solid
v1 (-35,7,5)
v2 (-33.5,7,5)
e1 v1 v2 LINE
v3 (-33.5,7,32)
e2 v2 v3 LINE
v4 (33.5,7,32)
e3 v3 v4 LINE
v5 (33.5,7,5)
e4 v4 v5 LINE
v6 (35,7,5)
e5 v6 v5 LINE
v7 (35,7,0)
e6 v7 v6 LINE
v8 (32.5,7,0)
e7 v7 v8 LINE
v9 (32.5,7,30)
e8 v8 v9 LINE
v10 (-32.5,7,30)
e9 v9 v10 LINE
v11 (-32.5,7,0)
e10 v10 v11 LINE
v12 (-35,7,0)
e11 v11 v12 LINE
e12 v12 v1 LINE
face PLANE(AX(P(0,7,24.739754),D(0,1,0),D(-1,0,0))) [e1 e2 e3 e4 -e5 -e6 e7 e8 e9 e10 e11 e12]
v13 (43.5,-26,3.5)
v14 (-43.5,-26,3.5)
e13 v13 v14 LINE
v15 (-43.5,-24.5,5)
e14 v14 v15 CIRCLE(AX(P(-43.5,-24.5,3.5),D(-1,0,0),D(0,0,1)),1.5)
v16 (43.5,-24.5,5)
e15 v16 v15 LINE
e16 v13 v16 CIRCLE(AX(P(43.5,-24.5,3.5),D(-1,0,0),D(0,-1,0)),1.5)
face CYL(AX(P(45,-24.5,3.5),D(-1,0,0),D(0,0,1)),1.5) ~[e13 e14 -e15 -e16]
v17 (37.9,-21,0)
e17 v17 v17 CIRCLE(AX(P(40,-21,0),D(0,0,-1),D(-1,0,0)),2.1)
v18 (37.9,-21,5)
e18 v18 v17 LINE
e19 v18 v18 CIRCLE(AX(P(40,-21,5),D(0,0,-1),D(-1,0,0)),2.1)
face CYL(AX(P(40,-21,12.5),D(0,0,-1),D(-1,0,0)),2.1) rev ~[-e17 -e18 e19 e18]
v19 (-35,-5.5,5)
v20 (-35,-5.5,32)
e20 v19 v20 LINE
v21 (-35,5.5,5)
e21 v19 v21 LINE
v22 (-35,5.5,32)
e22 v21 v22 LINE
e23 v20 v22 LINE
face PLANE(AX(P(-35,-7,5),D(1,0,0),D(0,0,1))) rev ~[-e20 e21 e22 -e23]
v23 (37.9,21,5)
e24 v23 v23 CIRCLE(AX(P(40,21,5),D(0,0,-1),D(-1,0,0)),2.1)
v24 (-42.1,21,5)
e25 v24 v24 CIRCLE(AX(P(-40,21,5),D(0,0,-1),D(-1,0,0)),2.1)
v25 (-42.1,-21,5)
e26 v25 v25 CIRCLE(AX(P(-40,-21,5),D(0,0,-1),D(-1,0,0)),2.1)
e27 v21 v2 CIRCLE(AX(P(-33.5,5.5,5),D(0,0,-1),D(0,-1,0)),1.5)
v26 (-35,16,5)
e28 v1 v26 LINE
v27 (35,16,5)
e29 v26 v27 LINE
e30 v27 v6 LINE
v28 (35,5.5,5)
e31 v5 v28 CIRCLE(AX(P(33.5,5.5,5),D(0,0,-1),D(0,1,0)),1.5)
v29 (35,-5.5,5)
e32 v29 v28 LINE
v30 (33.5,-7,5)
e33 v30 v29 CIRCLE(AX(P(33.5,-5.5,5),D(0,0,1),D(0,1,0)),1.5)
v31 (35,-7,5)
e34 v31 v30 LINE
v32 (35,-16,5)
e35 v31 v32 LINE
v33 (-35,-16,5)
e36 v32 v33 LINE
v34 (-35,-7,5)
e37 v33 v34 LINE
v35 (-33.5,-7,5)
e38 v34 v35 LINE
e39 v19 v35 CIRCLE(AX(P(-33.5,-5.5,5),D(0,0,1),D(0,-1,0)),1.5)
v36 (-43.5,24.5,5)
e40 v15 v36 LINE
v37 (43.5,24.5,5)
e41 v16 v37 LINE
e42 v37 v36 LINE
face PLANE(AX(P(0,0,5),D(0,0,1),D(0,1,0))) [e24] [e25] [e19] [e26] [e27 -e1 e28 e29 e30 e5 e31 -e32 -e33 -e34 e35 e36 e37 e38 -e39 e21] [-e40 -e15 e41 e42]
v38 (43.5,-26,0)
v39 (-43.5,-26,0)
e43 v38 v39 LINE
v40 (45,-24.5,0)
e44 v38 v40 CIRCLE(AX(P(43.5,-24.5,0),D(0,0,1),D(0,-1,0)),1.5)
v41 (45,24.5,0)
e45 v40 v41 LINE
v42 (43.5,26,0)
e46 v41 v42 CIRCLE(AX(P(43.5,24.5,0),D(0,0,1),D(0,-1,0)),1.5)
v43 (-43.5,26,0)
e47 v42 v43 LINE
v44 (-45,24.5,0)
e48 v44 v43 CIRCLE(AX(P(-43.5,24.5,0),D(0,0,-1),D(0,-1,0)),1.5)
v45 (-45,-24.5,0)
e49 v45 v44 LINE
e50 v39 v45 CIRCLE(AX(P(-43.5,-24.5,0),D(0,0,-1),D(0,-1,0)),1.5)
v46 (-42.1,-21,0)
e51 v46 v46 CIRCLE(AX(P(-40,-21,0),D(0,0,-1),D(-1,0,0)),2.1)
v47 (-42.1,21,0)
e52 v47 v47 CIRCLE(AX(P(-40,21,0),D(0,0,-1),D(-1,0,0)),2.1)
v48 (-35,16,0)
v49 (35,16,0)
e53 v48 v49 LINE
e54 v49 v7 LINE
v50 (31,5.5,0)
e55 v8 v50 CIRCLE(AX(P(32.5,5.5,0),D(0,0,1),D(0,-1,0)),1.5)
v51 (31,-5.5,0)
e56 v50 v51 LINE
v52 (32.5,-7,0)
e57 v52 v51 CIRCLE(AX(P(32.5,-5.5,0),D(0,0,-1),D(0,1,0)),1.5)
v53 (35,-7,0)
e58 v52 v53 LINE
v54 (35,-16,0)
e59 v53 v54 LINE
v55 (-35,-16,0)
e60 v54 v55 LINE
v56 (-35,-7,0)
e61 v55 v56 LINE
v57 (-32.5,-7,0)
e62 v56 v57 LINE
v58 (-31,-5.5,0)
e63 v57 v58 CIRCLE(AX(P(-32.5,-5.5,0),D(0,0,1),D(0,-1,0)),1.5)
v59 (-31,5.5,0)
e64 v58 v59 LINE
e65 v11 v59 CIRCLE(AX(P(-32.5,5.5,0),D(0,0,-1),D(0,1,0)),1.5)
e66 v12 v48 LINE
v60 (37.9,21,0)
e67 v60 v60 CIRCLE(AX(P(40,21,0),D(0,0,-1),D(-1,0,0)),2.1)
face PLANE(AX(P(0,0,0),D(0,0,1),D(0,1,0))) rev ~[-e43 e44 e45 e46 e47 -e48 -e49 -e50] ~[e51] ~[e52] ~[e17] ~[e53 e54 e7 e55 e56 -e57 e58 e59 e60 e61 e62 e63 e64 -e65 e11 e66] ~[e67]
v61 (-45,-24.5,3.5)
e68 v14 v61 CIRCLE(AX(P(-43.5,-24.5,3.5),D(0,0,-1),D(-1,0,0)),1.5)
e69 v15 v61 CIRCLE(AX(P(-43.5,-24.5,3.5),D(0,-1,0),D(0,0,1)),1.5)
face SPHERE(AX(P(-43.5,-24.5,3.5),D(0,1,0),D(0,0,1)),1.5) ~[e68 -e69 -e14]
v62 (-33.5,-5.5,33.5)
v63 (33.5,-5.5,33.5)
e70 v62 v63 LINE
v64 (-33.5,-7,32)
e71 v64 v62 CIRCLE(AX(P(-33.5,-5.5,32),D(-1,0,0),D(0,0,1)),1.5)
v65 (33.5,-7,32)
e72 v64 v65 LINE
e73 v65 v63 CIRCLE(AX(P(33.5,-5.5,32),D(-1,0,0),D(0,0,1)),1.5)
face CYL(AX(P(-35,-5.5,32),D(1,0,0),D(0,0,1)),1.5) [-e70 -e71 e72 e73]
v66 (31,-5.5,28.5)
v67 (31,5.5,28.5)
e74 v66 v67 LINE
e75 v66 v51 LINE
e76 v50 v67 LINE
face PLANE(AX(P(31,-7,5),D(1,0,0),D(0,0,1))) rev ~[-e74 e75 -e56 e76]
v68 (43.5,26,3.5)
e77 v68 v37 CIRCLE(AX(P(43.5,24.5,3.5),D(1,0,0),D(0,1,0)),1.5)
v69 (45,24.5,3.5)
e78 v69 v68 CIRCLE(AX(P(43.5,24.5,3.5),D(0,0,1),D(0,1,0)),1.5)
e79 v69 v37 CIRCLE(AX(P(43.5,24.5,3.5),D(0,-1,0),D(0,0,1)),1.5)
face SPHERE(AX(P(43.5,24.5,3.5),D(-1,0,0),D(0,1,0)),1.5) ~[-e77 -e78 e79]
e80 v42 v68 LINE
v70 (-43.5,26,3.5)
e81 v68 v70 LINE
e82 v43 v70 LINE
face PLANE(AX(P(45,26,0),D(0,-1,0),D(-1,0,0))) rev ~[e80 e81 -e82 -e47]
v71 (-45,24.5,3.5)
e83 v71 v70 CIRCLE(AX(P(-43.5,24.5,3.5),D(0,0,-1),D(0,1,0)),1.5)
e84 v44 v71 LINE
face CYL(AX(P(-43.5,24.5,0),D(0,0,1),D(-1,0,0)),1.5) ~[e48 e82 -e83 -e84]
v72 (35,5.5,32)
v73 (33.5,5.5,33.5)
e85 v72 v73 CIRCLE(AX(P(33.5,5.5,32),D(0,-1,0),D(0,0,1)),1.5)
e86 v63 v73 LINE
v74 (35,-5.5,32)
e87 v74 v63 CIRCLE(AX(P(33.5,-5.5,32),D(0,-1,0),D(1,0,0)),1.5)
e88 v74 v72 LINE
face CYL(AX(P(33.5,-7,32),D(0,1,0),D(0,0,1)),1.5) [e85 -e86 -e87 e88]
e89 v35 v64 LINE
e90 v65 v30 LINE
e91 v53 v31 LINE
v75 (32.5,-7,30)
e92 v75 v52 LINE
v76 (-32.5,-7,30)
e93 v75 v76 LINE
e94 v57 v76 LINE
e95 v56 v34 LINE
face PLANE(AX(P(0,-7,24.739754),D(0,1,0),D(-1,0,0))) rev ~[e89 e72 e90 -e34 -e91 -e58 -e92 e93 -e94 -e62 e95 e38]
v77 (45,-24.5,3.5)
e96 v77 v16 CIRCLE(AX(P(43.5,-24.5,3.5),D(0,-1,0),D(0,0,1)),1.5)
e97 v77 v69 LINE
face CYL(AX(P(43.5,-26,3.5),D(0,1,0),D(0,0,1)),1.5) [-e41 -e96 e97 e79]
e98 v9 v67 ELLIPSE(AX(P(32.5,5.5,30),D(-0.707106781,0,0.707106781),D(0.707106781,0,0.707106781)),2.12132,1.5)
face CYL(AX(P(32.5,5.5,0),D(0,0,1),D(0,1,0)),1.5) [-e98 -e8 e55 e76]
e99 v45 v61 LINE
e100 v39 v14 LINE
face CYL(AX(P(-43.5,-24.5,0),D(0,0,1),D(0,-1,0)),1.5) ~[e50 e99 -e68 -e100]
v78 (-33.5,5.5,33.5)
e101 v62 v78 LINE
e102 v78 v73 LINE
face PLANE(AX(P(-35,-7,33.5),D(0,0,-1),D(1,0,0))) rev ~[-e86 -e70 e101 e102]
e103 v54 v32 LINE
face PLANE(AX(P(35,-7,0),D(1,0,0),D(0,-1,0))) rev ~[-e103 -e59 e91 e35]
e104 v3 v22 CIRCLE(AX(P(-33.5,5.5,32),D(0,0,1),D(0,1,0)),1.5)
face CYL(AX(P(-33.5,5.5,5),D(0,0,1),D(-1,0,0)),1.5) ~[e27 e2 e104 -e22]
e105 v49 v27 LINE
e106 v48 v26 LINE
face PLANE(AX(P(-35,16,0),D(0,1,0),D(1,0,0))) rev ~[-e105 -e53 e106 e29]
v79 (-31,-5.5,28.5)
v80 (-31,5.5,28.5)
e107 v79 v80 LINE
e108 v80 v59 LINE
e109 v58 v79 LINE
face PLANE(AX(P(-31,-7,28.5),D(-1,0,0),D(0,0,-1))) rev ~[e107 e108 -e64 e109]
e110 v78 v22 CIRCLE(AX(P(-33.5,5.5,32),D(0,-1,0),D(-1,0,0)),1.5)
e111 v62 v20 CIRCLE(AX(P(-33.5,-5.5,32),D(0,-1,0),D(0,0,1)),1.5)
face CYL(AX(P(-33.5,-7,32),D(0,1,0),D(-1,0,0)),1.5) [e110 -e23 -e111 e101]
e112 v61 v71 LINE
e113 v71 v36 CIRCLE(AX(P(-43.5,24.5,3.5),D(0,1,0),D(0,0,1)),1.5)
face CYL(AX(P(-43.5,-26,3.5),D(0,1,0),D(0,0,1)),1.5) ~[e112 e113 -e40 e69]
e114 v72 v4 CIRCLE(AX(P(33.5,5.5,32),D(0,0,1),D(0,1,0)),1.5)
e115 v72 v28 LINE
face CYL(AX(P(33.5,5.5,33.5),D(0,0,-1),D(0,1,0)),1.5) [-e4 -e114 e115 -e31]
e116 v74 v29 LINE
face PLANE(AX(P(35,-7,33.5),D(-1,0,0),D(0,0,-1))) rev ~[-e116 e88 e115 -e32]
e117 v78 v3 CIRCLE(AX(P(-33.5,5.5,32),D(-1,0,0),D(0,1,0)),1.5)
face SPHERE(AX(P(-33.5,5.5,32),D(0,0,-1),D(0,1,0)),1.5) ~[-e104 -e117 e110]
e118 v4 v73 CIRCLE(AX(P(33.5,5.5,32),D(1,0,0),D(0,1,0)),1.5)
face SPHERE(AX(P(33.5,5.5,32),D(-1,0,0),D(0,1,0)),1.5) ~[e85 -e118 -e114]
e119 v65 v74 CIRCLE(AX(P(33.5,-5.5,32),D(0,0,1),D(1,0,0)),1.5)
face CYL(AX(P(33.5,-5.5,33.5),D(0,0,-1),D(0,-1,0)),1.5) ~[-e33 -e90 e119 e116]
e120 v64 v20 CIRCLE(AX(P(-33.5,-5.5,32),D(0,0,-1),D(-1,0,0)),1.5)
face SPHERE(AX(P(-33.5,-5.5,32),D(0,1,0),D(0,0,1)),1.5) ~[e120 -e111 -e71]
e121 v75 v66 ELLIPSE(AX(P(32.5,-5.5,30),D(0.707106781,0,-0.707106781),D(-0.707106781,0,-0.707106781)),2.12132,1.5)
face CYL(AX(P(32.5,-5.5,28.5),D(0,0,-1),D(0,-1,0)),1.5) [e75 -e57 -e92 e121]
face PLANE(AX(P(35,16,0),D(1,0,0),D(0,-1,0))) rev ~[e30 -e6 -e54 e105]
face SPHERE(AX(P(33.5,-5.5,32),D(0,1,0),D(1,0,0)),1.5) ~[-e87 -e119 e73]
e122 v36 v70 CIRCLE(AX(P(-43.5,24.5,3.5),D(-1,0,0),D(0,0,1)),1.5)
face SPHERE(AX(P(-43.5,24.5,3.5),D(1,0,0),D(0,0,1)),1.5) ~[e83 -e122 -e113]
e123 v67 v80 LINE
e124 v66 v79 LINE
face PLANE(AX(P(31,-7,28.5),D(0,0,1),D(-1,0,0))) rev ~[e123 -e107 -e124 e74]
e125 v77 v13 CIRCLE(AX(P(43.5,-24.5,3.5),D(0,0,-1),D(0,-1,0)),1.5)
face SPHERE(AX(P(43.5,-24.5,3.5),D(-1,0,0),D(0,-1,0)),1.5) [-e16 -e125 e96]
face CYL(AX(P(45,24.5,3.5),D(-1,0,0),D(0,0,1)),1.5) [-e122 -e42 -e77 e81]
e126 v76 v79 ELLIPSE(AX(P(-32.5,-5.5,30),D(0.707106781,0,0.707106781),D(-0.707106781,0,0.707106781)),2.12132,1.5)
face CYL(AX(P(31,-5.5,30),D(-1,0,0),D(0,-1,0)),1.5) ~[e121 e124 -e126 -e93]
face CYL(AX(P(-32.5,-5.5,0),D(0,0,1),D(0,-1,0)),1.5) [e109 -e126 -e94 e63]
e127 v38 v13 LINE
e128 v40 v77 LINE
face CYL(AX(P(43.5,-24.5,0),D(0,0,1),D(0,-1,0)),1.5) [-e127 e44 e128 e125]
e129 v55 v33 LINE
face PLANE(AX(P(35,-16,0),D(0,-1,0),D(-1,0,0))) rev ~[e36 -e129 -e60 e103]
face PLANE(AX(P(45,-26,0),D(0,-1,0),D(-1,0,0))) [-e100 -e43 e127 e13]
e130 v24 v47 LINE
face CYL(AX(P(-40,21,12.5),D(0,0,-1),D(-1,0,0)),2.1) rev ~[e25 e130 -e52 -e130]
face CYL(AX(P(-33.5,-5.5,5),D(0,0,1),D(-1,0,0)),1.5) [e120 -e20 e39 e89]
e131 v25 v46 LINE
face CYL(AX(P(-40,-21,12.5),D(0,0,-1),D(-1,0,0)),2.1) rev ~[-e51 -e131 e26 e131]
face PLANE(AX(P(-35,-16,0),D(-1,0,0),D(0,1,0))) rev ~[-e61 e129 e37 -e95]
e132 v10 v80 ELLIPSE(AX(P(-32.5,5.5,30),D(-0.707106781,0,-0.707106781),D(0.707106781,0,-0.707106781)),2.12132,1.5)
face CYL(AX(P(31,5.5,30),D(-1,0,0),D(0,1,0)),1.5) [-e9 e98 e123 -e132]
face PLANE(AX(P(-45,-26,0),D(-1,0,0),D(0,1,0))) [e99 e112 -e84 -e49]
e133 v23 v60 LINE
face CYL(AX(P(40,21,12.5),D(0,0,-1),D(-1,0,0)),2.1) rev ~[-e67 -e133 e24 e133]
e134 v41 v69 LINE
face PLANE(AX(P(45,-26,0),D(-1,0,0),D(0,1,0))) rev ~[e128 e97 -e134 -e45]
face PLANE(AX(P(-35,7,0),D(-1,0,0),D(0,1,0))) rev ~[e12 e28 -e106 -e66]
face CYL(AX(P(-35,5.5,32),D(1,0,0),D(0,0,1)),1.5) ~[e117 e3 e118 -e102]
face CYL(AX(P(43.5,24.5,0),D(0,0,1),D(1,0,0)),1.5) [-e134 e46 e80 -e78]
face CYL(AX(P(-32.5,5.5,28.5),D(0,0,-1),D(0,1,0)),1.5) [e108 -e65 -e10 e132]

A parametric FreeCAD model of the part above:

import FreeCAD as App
import Part
import Sketcher

V = App.Vector


def edges_at(feature, points):
    """Names of the edges that pass closest to the given points."""
    edges = feature.Shape.Edges
    near = lambda p: min(range(len(edges)), key=lambda i: edges[i].distToShape(Part.Vertex(*p))[0])
    return sorted({f"Edge{near(p) + 1}" for p in points})


def add_polygon(sketch, points):
    """Adds a closed chain of lines whose ends are joined by coincident constraints."""
    first, n = sketch.GeometryCount, len(points)
    for a, b in zip(points, points[1:] + points[:1]):
        sketch.addGeometry(Part.LineSegment(App.Vector(*a, 0), App.Vector(*b, 0)), False)
    for i in range(n):
        sketch.addConstraint(Sketcher.Constraint("Coincident", first + i, 2, first + (i + 1) % n, 1))

doc = App.newDocument("Part")
body = doc.addObject("PartDesign::Body", "Body")

sketch1 = doc.addObject("Sketcher::SketchObject", "Sketch")
body.addObject(sketch1)
sketch1.AttachmentSupport = (doc.XY_Plane, [""])
sketch1.MapMode = "FlatFace"
add_polygon(sketch1, [(-45, -26), (45, -26), (45, 26), (-45, 26)])
add_polygon(sketch1, [(35, -16), (-35, -16), (-35, -7), (-31, -7), (-31, 7), (-35, 7), (-35, 16), (35, 16), (35, 7), (31, 7), (31, -7), (35, -7)])
sketch1.addConstraint([
    Sketcher.Constraint("Horizontal", 0),
    Sketcher.Constraint("Vertical", 1),
    Sketcher.Constraint("Horizontal", 2),
    Sketcher.Constraint("Vertical", 3),
    Sketcher.Constraint("Horizontal", 4),
    Sketcher.Constraint("Vertical", 5),
    Sketcher.Constraint("Horizontal", 6),
    Sketcher.Constraint("Vertical", 7),
    Sketcher.Constraint("Horizontal", 8),
    Sketcher.Constraint("Vertical", 9),
    Sketcher.Constraint("Horizontal", 10),
    Sketcher.Constraint("Vertical", 11),
    Sketcher.Constraint("Horizontal", 12),
    Sketcher.Constraint("Vertical", 13),
    Sketcher.Constraint("Horizontal", 14),
    Sketcher.Constraint("Vertical", 15),
    Sketcher.Constraint("Symmetric", 0, 2, 2, 2, -1, 1),
    Sketcher.Constraint("Symmetric", 4, 2, 10, 2, -1, 1),
    Sketcher.Constraint("Symmetric", 6, 2, 12, 2, -1, 1),
    Sketcher.Constraint("Symmetric", 8, 2, 14, 2, -1, 1),
    Sketcher.Constraint("Symmetric", 8, 2, 11, 2, -2),
    Sketcher.Constraint("DistanceX", 0, 1, 0, 2, 90.0),
    Sketcher.Constraint("DistanceX", 4, 2, 4, 1, 70.0),
    Sketcher.Constraint("DistanceX", 6, 1, 6, 2, 4.0),
    Sketcher.Constraint("DistanceY", 1, 1, 1, 2, 52.0),
    Sketcher.Constraint("DistanceY", 5, 1, 5, 2, 9.0),
    Sketcher.Constraint("DistanceY", 7, 1, 7, 2, 14.0),
])
pad1 = doc.addObject("PartDesign::Pad", "Pad")
body.addObject(pad1)
pad1.Profile = sketch1
pad1.Length = 5

sketch2 = doc.addObject("Sketcher::SketchObject", "Sketch001")
body.addObject(sketch2)
sketch2.AttachmentSupport = (doc.XZ_Plane, [""])
sketch2.MapMode = "FlatFace"
sketch2.AttachmentOffset = App.Placement(V(0, 0, 7), App.Rotation())
add_polygon(sketch2, [(-35, 33.5), (-35, 5), (-31, 5), (-31, 28.5), (31, 28.5), (31, 5), (35, 5), (35, 33.5)])
sketch2.addConstraint([
    Sketcher.Constraint("Vertical", 0),
    Sketcher.Constraint("Horizontal", 1),
    Sketcher.Constraint("Vertical", 2),
    Sketcher.Constraint("Horizontal", 3),
    Sketcher.Constraint("Vertical", 4),
    Sketcher.Constraint("Horizontal", 5),
    Sketcher.Constraint("Vertical", 6),
    Sketcher.Constraint("Horizontal", 7),
    Sketcher.Constraint("Symmetric", 1, 2, 4, 2, -2),
    Sketcher.Constraint("Equal", 1, 5),
    Sketcher.Constraint("DistanceX", 1, 1, 1, 2, 4.0),
    Sketcher.Constraint("DistanceX", 3, 1, 3, 2, 62.0),
    Sketcher.Constraint("DistanceY", 0, 2, 0, 1, 28.5),
    Sketcher.Constraint("DistanceY", 2, 1, 2, 2, 23.5),
    Sketcher.Constraint("DistanceY", -1, 1, 0, 2, 5.0),
])
pad2 = doc.addObject("PartDesign::Pad", "Pad001")
body.addObject(pad2)
pad2.Profile = sketch2
pad2.Length = 14
pad2.Reversed = True

sketch3 = doc.addObject("Sketcher::SketchObject", "Sketch002")
body.addObject(sketch3)
sketch3.AttachmentSupport = (doc.XY_Plane, [""])
sketch3.MapMode = "FlatFace"
sketch3.AttachmentOffset = App.Placement(V(0, 0, 5), App.Rotation())
sketch3.addGeometry([
    Part.Circle(V(-40, 21, 0), V(0, 0, 1), 2.1),
    Part.Circle(V(40, 21, 0), V(0, 0, 1), 2.1),
    Part.Circle(V(-40, -21, 0), V(0, 0, 1), 2.1),
    Part.Circle(V(40, -21, 0), V(0, 0, 1), 2.1),
], False)
sketch3.addConstraint([
    Sketcher.Constraint("Equal", 0, 1),
    Sketcher.Constraint("Equal", 1, 2),
    Sketcher.Constraint("Equal", 2, 3),
    Sketcher.Constraint("Symmetric", 1, 3, 2, 3, -1, 1),
    Sketcher.Constraint("Symmetric", 0, 3, 3, 3, -1, 1),
    Sketcher.Constraint("Symmetric", 0, 3, 1, 3, -2),
    Sketcher.Constraint("Diameter", 0, 4.2),
    Sketcher.Constraint("DistanceX", 0, 3, -1, 1, 40.0),
    Sketcher.Constraint("DistanceY", -1, 1, 0, 3, 21.0),
])
doc.recompute()
hole = doc.addObject("PartDesign::Hole", "Hole")
body.addObject(hole)
hole.Profile = sketch3
hole.ThreadType = "None"
hole.Diameter = 4.2
hole.DepthType = "Dimension"
hole.Depth = 7.5
hole.DrillPoint = "Angled"
hole.DrillPointAngle = 118
doc.recompute()

fillet = doc.addObject("PartDesign::Fillet", "Fillet")
body.addObject(fillet)
fillet.Base = (hole, edges_at(hole, [
    (0, 26, 5),
    (-45, 0, 5),
    (31, -7, 14.25),
    (31, 7, 14.25),
    (-31, 7, 14.25),
    (-31, -7, 14.25),
    (0, -26, 5),
    (-35, 7, 19.25),
    (0, 7, 33.5),
    (-35, 0, 33.5),
    (35, 7, 19.25),
    (35, 0, 33.5),
    (0, 7, 28.5),
    (0, -7, 28.5),
    (35, -7, 19.25),
    (0, -7, 33.5),
    (-35, -7, 19.25),
    (-45, -26, 2.5),
    (-45, 26, 2.5),
    (45, 26, 2.5),
    (45, -26, 2.5),
    (45, 0, 5),
]))
fillet.Radius = 1.5

doc.recompute()
